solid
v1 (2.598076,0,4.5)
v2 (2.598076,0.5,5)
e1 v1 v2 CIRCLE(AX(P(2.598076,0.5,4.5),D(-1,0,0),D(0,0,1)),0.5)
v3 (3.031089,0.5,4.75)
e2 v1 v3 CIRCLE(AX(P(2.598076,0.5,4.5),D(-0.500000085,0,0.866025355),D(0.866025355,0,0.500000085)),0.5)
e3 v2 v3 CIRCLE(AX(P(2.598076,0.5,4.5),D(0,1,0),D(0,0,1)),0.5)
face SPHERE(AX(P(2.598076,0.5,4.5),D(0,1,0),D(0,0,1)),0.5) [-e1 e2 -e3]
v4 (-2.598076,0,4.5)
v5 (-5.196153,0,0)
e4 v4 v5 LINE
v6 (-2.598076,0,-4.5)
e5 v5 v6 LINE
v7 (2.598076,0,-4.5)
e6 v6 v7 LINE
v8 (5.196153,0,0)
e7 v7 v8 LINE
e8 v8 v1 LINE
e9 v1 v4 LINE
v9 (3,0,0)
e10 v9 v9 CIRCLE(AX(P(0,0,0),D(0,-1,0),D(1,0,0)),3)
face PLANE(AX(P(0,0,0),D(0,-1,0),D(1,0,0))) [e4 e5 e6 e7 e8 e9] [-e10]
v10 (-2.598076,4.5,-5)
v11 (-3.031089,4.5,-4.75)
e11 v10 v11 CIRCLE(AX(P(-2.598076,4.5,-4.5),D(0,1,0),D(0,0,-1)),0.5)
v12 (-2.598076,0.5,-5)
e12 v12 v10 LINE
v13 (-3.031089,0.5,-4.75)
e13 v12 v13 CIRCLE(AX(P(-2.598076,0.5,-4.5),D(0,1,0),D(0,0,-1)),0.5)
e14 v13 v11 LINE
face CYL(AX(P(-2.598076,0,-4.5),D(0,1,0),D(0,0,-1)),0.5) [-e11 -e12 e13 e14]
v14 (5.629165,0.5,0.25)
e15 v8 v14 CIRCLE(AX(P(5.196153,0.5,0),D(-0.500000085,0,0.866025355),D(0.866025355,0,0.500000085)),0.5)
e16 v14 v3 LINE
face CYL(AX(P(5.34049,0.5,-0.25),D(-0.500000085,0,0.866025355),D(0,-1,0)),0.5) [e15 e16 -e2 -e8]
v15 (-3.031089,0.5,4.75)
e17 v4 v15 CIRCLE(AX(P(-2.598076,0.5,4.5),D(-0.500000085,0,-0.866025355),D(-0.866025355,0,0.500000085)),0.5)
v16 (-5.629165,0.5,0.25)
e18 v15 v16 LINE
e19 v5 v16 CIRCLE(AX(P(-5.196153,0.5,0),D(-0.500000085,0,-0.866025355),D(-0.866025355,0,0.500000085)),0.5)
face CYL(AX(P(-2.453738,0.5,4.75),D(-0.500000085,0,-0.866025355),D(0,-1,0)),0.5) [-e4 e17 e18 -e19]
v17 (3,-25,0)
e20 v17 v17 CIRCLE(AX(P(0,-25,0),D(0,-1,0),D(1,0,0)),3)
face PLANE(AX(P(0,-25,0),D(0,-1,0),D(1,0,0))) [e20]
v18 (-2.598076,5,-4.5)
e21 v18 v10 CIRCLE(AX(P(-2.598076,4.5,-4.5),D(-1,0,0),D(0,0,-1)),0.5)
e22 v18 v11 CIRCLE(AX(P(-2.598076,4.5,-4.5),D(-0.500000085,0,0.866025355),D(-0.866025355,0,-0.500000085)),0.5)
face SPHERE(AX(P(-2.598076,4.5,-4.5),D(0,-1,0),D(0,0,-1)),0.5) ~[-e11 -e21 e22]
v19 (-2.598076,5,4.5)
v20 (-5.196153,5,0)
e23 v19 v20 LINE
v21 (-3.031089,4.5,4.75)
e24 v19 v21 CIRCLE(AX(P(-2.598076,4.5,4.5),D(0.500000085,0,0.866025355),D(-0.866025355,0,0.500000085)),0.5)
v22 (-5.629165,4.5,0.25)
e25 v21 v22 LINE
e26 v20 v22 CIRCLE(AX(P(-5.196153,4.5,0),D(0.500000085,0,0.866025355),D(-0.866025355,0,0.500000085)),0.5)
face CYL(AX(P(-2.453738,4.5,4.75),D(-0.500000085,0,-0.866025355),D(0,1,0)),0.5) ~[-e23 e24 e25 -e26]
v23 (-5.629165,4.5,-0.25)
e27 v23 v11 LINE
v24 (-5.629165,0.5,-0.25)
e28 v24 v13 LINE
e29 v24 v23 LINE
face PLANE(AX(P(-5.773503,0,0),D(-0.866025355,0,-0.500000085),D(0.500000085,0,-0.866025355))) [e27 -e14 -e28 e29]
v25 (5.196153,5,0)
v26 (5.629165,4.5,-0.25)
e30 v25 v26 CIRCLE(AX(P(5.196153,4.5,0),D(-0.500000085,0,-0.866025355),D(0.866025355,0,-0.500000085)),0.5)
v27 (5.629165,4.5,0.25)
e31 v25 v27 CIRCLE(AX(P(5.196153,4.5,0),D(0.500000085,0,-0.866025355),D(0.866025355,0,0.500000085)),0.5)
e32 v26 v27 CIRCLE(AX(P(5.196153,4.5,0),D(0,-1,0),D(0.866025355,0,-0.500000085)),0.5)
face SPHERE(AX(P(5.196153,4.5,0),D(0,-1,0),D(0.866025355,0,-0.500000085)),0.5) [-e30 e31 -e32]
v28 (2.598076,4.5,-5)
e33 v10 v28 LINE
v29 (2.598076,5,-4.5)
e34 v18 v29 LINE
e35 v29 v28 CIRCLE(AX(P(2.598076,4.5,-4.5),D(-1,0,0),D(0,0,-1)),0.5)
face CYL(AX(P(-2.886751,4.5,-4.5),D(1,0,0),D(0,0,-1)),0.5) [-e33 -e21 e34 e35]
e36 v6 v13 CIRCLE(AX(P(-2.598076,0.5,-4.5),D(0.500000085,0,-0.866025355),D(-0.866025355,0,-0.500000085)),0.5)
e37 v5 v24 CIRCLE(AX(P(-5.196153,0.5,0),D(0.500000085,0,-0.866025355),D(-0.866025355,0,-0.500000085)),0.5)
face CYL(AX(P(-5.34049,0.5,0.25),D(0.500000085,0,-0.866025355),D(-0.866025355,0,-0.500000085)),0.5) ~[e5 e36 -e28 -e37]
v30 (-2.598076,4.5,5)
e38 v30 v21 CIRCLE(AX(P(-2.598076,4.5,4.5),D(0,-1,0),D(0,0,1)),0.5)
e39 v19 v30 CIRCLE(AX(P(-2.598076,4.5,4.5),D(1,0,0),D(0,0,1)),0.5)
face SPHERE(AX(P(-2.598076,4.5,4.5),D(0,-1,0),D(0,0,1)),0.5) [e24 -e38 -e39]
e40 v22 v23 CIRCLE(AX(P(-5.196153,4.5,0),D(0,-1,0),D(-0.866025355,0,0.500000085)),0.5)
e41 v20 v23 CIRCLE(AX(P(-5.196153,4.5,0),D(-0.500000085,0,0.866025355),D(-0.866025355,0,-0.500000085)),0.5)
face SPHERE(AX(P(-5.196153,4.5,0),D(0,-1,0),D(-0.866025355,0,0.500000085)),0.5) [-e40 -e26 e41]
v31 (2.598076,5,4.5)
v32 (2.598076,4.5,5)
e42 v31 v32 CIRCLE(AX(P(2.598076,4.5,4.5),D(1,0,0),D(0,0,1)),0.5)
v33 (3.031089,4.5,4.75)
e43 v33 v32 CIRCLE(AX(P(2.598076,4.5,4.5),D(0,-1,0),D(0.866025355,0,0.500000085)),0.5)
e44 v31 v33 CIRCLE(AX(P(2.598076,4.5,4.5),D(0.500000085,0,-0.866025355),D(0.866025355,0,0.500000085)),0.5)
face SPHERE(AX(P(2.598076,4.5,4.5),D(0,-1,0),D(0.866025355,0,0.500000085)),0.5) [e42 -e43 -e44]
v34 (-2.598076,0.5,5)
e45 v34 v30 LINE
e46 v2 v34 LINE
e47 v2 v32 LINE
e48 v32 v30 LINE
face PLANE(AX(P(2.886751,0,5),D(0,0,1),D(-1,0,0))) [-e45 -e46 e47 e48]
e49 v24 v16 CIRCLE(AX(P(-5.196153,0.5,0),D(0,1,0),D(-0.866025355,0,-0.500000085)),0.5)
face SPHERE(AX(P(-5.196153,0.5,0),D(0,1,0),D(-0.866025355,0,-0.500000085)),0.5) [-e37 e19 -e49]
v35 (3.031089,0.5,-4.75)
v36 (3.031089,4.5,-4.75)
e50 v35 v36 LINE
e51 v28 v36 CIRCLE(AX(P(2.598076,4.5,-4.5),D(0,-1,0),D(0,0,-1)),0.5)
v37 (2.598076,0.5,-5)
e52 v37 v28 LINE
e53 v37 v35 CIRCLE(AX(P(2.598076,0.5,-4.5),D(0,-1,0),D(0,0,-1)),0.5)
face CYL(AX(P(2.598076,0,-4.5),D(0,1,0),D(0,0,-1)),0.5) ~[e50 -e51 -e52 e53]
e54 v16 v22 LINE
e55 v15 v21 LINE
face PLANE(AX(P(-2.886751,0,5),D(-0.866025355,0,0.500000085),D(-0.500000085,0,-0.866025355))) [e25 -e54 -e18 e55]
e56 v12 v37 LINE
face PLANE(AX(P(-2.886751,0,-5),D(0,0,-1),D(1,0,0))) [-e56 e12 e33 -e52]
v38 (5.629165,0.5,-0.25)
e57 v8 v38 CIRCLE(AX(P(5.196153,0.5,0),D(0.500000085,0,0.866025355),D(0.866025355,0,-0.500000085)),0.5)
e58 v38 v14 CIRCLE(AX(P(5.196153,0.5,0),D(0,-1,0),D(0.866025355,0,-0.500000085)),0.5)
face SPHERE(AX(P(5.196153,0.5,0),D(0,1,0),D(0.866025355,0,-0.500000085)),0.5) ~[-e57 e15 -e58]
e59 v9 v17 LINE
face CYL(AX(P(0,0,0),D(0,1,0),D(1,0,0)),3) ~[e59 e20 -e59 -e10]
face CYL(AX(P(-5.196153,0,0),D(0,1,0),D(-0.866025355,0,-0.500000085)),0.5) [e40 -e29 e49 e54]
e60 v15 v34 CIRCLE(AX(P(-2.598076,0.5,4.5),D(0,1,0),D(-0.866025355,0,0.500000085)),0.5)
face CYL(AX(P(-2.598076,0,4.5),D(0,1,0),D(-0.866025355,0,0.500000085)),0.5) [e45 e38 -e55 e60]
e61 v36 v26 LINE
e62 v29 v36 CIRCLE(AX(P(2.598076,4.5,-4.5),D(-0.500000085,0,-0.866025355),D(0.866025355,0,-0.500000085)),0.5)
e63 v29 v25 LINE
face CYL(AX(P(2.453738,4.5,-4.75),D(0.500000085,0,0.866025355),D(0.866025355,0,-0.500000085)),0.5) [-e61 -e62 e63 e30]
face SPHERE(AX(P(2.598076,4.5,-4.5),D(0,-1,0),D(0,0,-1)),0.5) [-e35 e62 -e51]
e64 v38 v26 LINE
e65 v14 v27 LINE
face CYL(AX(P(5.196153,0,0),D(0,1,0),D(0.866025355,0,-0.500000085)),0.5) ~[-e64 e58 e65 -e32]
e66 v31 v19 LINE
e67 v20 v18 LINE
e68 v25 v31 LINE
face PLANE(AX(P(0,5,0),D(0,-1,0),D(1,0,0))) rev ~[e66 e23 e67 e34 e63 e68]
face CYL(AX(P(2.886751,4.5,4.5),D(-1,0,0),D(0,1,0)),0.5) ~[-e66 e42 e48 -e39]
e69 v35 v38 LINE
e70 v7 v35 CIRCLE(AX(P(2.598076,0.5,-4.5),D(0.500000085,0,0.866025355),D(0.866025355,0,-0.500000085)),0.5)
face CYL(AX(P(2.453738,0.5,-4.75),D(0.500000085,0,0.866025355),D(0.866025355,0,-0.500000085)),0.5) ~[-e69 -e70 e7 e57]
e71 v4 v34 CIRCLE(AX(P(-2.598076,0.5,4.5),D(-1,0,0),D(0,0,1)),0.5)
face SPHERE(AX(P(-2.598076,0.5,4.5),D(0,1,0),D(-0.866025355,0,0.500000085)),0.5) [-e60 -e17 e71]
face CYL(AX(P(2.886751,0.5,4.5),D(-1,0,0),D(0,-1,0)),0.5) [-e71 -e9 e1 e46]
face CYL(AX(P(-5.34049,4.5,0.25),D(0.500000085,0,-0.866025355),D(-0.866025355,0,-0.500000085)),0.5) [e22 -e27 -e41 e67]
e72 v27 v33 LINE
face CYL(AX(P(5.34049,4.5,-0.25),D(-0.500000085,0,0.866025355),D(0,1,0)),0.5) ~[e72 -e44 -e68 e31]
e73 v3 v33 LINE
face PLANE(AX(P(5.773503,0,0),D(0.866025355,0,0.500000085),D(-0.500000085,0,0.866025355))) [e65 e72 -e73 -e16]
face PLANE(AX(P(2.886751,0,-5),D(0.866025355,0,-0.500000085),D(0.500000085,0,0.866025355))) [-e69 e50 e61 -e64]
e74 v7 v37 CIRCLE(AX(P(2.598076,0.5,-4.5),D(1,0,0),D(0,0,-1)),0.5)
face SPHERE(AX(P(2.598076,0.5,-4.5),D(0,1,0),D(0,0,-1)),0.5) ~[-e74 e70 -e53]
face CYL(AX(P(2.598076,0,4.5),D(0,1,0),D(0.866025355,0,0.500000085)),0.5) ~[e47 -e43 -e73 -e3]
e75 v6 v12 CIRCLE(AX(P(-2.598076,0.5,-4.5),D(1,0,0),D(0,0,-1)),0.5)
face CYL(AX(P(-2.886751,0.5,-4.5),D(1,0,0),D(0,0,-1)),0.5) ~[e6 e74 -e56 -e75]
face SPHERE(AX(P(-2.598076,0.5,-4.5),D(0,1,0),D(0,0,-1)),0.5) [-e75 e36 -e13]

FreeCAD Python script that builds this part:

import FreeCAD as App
import Part
import Sketcher
Q = App.Units.Quantity


def edges_at(feature, points):
    """Names of the edges that pass closest to the given points."""
    edges = feature.Shape.Edges
    near = lambda p: min(range(len(edges)), key=lambda i: edges[i].distToShape(Part.Vertex(*p))[0])
    return sorted({f"Edge{near(p) + 1}" for p in points})

doc = App.newDocument("Part")
body = doc.addObject("PartDesign::Body", "Body")

# Sketch on XZ plane
sketch1 = body.newObject("Sketcher::SketchObject", "Sketch")
sketch1.AttachmentSupport = (doc.getObject("XZ_Plane"), [""])
sketch1.MapMode = "FlatFace"
sketch1.addGeometry(Part.Circle(App.Vector(0, 0, 0), App.Vector(0, 0, 1), 3), False)
sketch1.addConstraint(Sketcher.Constraint("Coincident", 0, 3, -1, 1))
sketch1.addConstraint(Sketcher.Constraint("Diameter", 0, 6.0))
pad1 = body.newObject("PartDesign::Pad", "Pad")
pad1.Profile = sketch1
pad1.Length = 25

# Sketch on XZ plane
sketch2 = body.newObject("Sketcher::SketchObject", "Sketch001")
sketch2.AttachmentSupport = (doc.getObject("XZ_Plane"), [""])
sketch2.MapMode = "FlatFace"
sketch2.addGeometry(Part.LineSegment(App.Vector(-3, -5, 0), App.Vector(3, -5, 0)), False)
sketch2.addGeometry(Part.LineSegment(App.Vector(3, -5, 0), App.Vector(6, 0, 0)), False)
sketch2.addGeometry(Part.LineSegment(App.Vector(6, 0, 0), App.Vector(3, 5, 0)), False)
sketch2.addGeometry(Part.LineSegment(App.Vector(3, 5, 0), App.Vector(-3, 5, 0)), False)
sketch2.addGeometry(Part.LineSegment(App.Vector(-3, 5, 0), App.Vector(-6, 0, 0)), False)
sketch2.addGeometry(Part.LineSegment(App.Vector(-6, 0, 0), App.Vector(-3, -5, 0)), False)
sketch2.addConstraint(Sketcher.Constraint("Coincident", 0, 2, 1, 1))
sketch2.addConstraint(Sketcher.Constraint("Coincident", 1, 2, 2, 1))
sketch2.addConstraint(Sketcher.Constraint("Coincident", 2, 2, 3, 1))
sketch2.addConstraint(Sketcher.Constraint("Coincident", 3, 2, 4, 1))
sketch2.addConstraint(Sketcher.Constraint("Coincident", 4, 2, 5, 1))
sketch2.addConstraint(Sketcher.Constraint("Coincident", 5, 2, 0, 1))
sketch2.addConstraint(Sketcher.Constraint("Horizontal", 0))
sketch2.addConstraint(Sketcher.Constraint("Horizontal", 3))
sketch2.addConstraint(Sketcher.Constraint("Symmetric", 0, 2, 3, 2, -1, 1))
sketch2.addConstraint(Sketcher.Constraint("Symmetric", 1, 2, 4, 2, -1, 1))
sketch2.addConstraint(Sketcher.Constraint("PointOnObject", 1, 2, -1))
sketch2.addConstraint(Sketcher.Constraint("Parallel", 2, 5))
sketch2.addConstraint(Sketcher.Constraint("Vertical", 0, 2, 2, 2))
sketch2.addConstraint(Sketcher.Constraint("Angle", 1, Q("59.999994 deg")))
sketch2.addConstraint(Sketcher.Constraint("DistanceY", 0, 2, -1, 1, 5.0))
sketch2.addConstraint(Sketcher.Constraint("DistanceX", 0, 1, 0, 2, 5.773502))
pad2 = body.newObject("PartDesign::Pad", "Pad001")
pad2.Profile = sketch2
pad2.Length = 5
pad2.Reversed = True
doc.recompute()

fillet = body.newObject("PartDesign::Fillet", "Fillet")
fillet.Base = (pad2, edges_at(pad2, [
    (-2.887, 2.5, -5),
    (2.887, 2.5, -5),
    (0, 0, -5),
    (0, 5, -5),
    (5.774, 2.5, 0),
    (4.33, 0, -2.5),
    (4.33, 5, -2.5),
    (4.33, 5, 2.5),
    (0, 5, 5),
    (-4.33, 5, 2.5),
    (-4.33, 5, -2.5),
    (-5.774, 2.5, 0),
    (-4.33, 0, -2.5),
    (-2.887, 2.5, 5),
    (-4.33, 0, 2.5),
    (2.887, 2.5, 5),
    (0, 0, 5),
    (4.33, 0, 2.5),
]))
fillet.Radius = 0.5

doc.recompute()
